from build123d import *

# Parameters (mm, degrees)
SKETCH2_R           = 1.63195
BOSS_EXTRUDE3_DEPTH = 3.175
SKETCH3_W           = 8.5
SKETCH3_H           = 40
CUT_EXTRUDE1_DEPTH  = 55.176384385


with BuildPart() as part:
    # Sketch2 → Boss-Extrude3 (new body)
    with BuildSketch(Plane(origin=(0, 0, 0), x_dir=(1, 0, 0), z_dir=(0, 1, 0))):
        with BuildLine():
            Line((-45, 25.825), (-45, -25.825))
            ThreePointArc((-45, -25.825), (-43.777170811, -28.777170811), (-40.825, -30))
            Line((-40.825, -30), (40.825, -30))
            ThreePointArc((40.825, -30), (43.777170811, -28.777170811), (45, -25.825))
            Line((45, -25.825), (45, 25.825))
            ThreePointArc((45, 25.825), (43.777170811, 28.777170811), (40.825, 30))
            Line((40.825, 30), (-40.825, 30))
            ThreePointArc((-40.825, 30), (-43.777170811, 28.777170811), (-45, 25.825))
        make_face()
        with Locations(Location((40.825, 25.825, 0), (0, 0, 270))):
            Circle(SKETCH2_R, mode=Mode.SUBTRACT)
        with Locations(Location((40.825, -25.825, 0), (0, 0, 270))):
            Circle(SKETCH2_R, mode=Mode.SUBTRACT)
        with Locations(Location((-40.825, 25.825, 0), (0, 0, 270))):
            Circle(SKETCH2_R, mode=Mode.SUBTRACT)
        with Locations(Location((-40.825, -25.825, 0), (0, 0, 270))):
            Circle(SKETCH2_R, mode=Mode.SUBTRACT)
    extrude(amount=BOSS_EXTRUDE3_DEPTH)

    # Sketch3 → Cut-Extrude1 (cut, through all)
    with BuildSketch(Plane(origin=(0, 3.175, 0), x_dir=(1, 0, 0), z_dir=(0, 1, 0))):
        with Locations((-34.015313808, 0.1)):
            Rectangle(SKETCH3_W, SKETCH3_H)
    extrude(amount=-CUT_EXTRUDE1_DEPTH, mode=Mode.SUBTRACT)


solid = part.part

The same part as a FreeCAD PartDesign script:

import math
import FreeCAD as App
import Part
import Sketcher
Q = App.Units.Quantity

doc = App.newDocument("Part")
body = doc.addObject("PartDesign::Body", "Body")

sketch1 = doc.addObject("Sketcher::SketchObject", "Sketch")
body.addObject(sketch1)
sketch1.AttachmentSupport = (doc.XZ_Plane, [""])
sketch1.MapMode = "FlatFace"
sketch1.addGeometry(Part.LineSegment(App.Vector(-45, -25.825, 0), App.Vector(-45, 25.825, 0)), False)
sketch1.addGeometry(Part.ArcOfCircle(Part.Circle(App.Vector(-40.825, 25.825, 0), App.Vector(0, 0, 1), 4.175), math.radians(90), math.radians(180)), False)
sketch1.addGeometry(Part.LineSegment(App.Vector(-40.825, 30, 0), App.Vector(40.825, 30, 0)), False)
sketch1.addGeometry(Part.ArcOfCircle(Part.Circle(App.Vector(40.825, 25.825, 0), App.Vector(0, 0, 1), 4.175), math.radians(0), math.radians(90)), False)
sketch1.addGeometry(Part.LineSegment(App.Vector(45, 25.825, 0), App.Vector(45, -25.825, 0)), False)
sketch1.addGeometry(Part.ArcOfCircle(Part.Circle(App.Vector(40.825, -25.825, 0), App.Vector(0, 0, 1), 4.175), math.radians(-90), math.radians(0)), False)
sketch1.addGeometry(Part.LineSegment(App.Vector(40.825, -30, 0), App.Vector(-40.825, -30, 0)), False)
sketch1.addGeometry(Part.ArcOfCircle(Part.Circle(App.Vector(-40.825, -25.825, 0), App.Vector(0, 0, 1), 4.175), math.radians(-180), math.radians(-90)), False)
sketch1.addGeometry(Part.Circle(App.Vector(-40.825, 25.825, 0), App.Vector(0, 0, 1), 1.63195), False)
sketch1.addGeometry(Part.Circle(App.Vector(40.825, 25.825, 0), App.Vector(0, 0, 1), 1.63195), False)
sketch1.addGeometry(Part.Circle(App.Vector(-40.825, -25.825, 0), App.Vector(0, 0, 1), 1.63195), False)
sketch1.addGeometry(Part.Circle(App.Vector(40.825, -25.825, 0), App.Vector(0, 0, 1), 1.63195), False)
sketch1.addConstraint(Sketcher.Constraint("Tangent", 0, 2, 1, 2))
sketch1.addConstraint(Sketcher.Constraint("Tangent", 1, 1, 2, 1))
sketch1.addConstraint(Sketcher.Constraint("Tangent", 2, 2, 3, 2))
sketch1.addConstraint(Sketcher.Constraint("Tangent", 3, 1, 4, 1))
sketch1.addConstraint(Sketcher.Constraint("Tangent", 4, 2, 5, 2))
sketch1.addConstraint(Sketcher.Constraint("Tangent", 5, 1, 6, 1))
sketch1.addConstraint(Sketcher.Constraint("Tangent", 6, 2, 7, 2))
sketch1.addConstraint(Sketcher.Constraint("Tangent", 7, 1, 0, 1))
sketch1.addConstraint(Sketcher.Constraint("Vertical", 0))
sketch1.addConstraint(Sketcher.Constraint("Horizontal", 2))
sketch1.addConstraint(Sketcher.Constraint("Vertical", 4))
sketch1.addConstraint(Sketcher.Constraint("Horizontal", 6))
sketch1.addConstraint(Sketcher.Constraint("Coincident", 8, 3, 1, 3))
sketch1.addConstraint(Sketcher.Constraint("Coincident", 9, 3, 3, 3))
sketch1.addConstraint(Sketcher.Constraint("Coincident", 10, 3, 7, 3))
sketch1.addConstraint(Sketcher.Constraint("Coincident", 11, 3, 5, 3))
sketch1.addConstraint(Sketcher.Constraint("Equal", 1, 3))
sketch1.addConstraint(Sketcher.Constraint("Equal", 3, 5))
sketch1.addConstraint(Sketcher.Constraint("Equal", 5, 7))
sketch1.addConstraint(Sketcher.Constraint("Equal", 8, 9))
sketch1.addConstraint(Sketcher.Constraint("Equal", 9, 10))
sketch1.addConstraint(Sketcher.Constraint("Equal", 10, 11))
sketch1.addConstraint(Sketcher.Constraint("Symmetric", 1, 3, 5, 3, -1, 1))
sketch1.addConstraint(Sketcher.Constraint("DistanceX", 0, 2, -1, 1, Q("45 mm")))
sketch1.addConstraint(Sketcher.Constraint("DistanceY", -1, 1, 1, 1, Q("30 mm")))
sketch1.addConstraint(Sketcher.Constraint("Radius", 1, Q("4.175 mm")))
sketch1.addConstraint(Sketcher.Constraint("Diameter", 8, Q("3.2639 mm")))
pad1 = doc.addObject("PartDesign::Pad", "Pad")
body.addObject(pad1)
pad1.Profile = sketch1
pad1.Length = 3.175
pad1.Reversed = True

sketch2 = doc.addObject("Sketcher::SketchObject", "Sketch001")
body.addObject(sketch2)
sketch2.AttachmentSupport = (doc.XZ_Plane, [""])
sketch2.MapMode = "FlatFace"
sketch2.AttachmentOffset = App.Placement(App.Vector(0, 0, -3.175), App.Rotation())
sketch2.addGeometry(Part.LineSegment(App.Vector(-38.265314, -20.1, 0), App.Vector(-38.265314, 19.9, 0)), False)
sketch2.addGeometry(Part.LineSegment(App.Vector(-38.265314, 19.9, 0), App.Vector(-29.765314, 19.9, 0)), False)
sketch2.addGeometry(Part.LineSegment(App.Vector(-29.765314, 19.9, 0), App.Vector(-29.765314, -20.1, 0)), False)
sketch2.addGeometry(Part.LineSegment(App.Vector(-29.765314, -20.1, 0), App.Vector(-38.265314, -20.1, 0)), False)
sketch2.addConstraint(Sketcher.Constraint("Coincident", 0, 2, 1, 1))
sketch2.addConstraint(Sketcher.Constraint("Coincident", 1, 2, 2, 1))
sketch2.addConstraint(Sketcher.Constraint("Coincident", 2, 2, 3, 1))
sketch2.addConstraint(Sketcher.Constraint("Coincident", 3, 2, 0, 1))
sketch2.addConstraint(Sketcher.Constraint("Vertical", 0))
sketch2.addConstraint(Sketcher.Constraint("Horizontal", 1))
sketch2.addConstraint(Sketcher.Constraint("Vertical", 2))
sketch2.addConstraint(Sketcher.Constraint("Horizontal", 3))
sketch2.addConstraint(Sketcher.Constraint("DistanceY", 0, 1, 0, 2, Q("40 mm")))
sketch2.addConstraint(Sketcher.Constraint("DistanceX", 1, 1, 1, 2, Q("8.5 mm")))
sketch2.addConstraint(Sketcher.Constraint("DistanceY", -1, 1, 0, 2, Q("19.9 mm")))
sketch2.addConstraint(Sketcher.Constraint("DistanceX", 0, 2, -1, 1, Q("38.265314 mm")))
pocket1 = doc.addObject("PartDesign::Pocket", "Pocket")
body.addObject(pocket1)
pocket1.Profile = sketch2
pocket1.Type = "ThroughAll"
pocket1.Reversed = True

doc.recompute()
